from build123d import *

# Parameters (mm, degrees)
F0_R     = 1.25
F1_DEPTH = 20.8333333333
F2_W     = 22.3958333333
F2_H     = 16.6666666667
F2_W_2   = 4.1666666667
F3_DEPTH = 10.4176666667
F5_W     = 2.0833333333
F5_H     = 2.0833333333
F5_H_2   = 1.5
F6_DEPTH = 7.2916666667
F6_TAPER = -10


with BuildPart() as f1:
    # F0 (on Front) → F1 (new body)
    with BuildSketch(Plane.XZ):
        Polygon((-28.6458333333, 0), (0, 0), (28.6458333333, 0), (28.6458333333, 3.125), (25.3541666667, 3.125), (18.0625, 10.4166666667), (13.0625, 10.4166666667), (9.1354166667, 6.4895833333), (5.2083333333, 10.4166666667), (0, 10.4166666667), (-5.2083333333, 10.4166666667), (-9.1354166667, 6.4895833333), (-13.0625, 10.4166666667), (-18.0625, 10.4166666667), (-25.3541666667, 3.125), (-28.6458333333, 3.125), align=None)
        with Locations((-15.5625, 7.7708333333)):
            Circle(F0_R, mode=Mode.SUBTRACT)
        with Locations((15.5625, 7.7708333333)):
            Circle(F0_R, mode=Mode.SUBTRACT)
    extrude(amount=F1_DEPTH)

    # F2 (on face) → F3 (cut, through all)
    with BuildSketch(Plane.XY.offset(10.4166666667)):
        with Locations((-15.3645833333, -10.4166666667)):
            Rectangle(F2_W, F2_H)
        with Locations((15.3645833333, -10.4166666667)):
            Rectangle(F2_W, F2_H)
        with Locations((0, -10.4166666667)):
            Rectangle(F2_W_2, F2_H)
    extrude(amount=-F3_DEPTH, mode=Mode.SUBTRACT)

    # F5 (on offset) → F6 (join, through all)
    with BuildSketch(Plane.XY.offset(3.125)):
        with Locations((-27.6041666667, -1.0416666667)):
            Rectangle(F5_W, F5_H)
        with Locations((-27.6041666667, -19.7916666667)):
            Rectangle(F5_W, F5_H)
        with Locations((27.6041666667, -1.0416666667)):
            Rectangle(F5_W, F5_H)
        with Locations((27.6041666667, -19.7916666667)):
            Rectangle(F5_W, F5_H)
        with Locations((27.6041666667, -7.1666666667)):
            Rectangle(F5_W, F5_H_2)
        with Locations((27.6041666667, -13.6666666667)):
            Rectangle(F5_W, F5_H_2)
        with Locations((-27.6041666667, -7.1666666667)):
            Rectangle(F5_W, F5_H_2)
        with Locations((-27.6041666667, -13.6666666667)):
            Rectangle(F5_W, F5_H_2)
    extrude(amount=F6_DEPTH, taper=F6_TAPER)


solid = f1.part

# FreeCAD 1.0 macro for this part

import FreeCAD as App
import Part
import Sketcher
from FreeCAD import Vector


def add_polygon(sketch, points):
    """Adds a closed chain of lines whose ends are joined by coincident constraints."""
    first, n = sketch.GeometryCount, len(points)
    for a, b in zip(points, points[1:] + points[:1]):
        sketch.addGeometry(Part.LineSegment(App.Vector(*a, 0), App.Vector(*b, 0)), False)
    for i in range(n):
        sketch.addConstraint(Sketcher.Constraint("Coincident", first + i, 2, first + (i + 1) % n, 1))

doc = App.newDocument("Part")
params = doc.addObject("Spreadsheet::Sheet", "Params")
for row, (alias, value) in enumerate([
    ("sketch1_diameter", "2.5 mm"),
    ("sketch1_width", "5 mm"),
    ("pad1_length", "20.833333 mm"),
    ("sketch3_height", "1.5 mm"),
    ("pad2_length", "7.291667 mm"),
    ("pad2_taper", "10 deg"),
], start=1):
    params.set(f"A{row}", alias)
    params.set(f"B{row}", "=" + value)
    params.setAlias(f"B{row}", alias)

body = doc.addObject("PartDesign::Body", "Body")

sketch1 = body.newObject("Sketcher::SketchObject", "Sketch")
sketch1.AttachmentSupport = (doc.getObject("XZ_Plane"), [""])
sketch1.MapMode = "FlatFace"
add_polygon(sketch1, [(-28.6, 0), (28.6, 0), (28.6, 3.1), (25.4, 3.1), (18.1, 10.4), (13.1, 10.4), (9.1, 6.5), (5.2, 10.4), (-5.2, 10.4), (-9.1, 6.5), (-13.1, 10.4), (-18.1, 10.4), (-25.4, 3.1), (-28.6, 3.1)])
sketch1.addGeometry(Part.Circle(Vector(-15.6, 7.8, 0), Vector(0, 0, 1), 1.2), False)
sketch1.addGeometry(Part.Circle(Vector(15.6, 7.8, 0), Vector(0, 0, 1), 1.2), False)
sketch1.addConstraint(Sketcher.Constraint("Horizontal", 0))
sketch1.addConstraint(Sketcher.Constraint("Vertical", 1))
sketch1.addConstraint(Sketcher.Constraint("Horizontal", 2))
sketch1.addConstraint(Sketcher.Constraint("Horizontal", 4))
sketch1.addConstraint(Sketcher.Constraint("Horizontal", 7))
sketch1.addConstraint(Sketcher.Constraint("Horizontal", 10))
sketch1.addConstraint(Sketcher.Constraint("Horizontal", 12))
sketch1.addConstraint(Sketcher.Constraint("Vertical", 13))
sketch1.addConstraint(Sketcher.Constraint("Equal", 14, 15))
sketch1.addConstraint(Sketcher.Constraint("Symmetric", 0, 2, 13, 2, -1, 1))
sketch1.addConstraint(Sketcher.Constraint("Symmetric", 14, 3, 15, 3, -2))
sketch1.addConstraint(Sketcher.Constraint("Symmetric", 5, 2, 8, 2, -2))
sketch1.addConstraint(Sketcher.Constraint("Symmetric", 4, 2, 9, 2, -2))
sketch1.addConstraint(Sketcher.Constraint("Symmetric", 2, 2, 11, 2, -2))
sketch1.addConstraint(Sketcher.Constraint("Perpendicular", 3, 5))
sketch1.addConstraint(Sketcher.Constraint("Perpendicular", 5, 6))
sketch1.addConstraint(Sketcher.Constraint("Perpendicular", 6, 8))
sketch1.addConstraint(Sketcher.Constraint("Perpendicular", 8, 9))
sketch1.addConstraint(Sketcher.Constraint("Perpendicular", 9, 11))
sketch1.addConstraint(Sketcher.Constraint("Horizontal", 4, 2, 6, 2))
sketch1.addConstraint(Sketcher.Constraint("Diameter", 14, 2.5))
sketch1.addConstraint(Sketcher.Constraint("DistanceX", 4, 2, 4, 1, 5.0))
sketch1.addConstraint(Sketcher.Constraint("DistanceX", 15, 3, 3, 2, 2.5))
sketch1.addConstraint(Sketcher.Constraint("DistanceY", 1, 1, 1, 2, 3.125))
sketch1.addConstraint(Sketcher.Constraint("DistanceX", 14, 3, 15, 3, 31.125))
sketch1.addConstraint(Sketcher.Constraint("DistanceX", 0, 1, 0, 2, 57.291667))
sketch1.addConstraint(Sketcher.Constraint("DistanceX", 2, 2, 2, 1, 3.291667))
sketch1.addConstraint(Sketcher.Constraint("DistanceX", 7, 2, 7, 1, 10.416667))
sketch1.addConstraint(Sketcher.Constraint("DistanceY", 5, 2, 15, 3, 1.28125))
sketch1.setExpression("Constraints[34]", "Params.sketch1_diameter")
sketch1.setExpression("Constraints[35]", "Params.sketch1_width")
pad1 = body.newObject("PartDesign::Pad", "Pad")
pad1.Profile = sketch1
pad1.setExpression("Length", "Params.pad1_length")

sketch2 = body.newObject("Sketcher::SketchObject", "Sketch001")
sketch2.AttachmentSupport = (doc.getObject("XY_Plane"), [""])
sketch2.MapMode = "FlatFace"
sketch2.AttachmentOffset = App.Placement(Vector(0, 0, 10.416667), App.Rotation())
add_polygon(sketch2, [(-26.6, -2.1), (-26.6, -18.8), (-4.2, -18.8), (-4.2, -2.1)])
add_polygon(sketch2, [(4.2, -2.1), (4.2, -18.8), (26.6, -18.8), (26.6, -2.1)])
add_polygon(sketch2, [(-2.1, -2.1), (-2.1, -18.8), (2.1, -18.8), (2.1, -2.1)])
sketch2.addConstraint(Sketcher.Constraint("Vertical", 0))
sketch2.addConstraint(Sketcher.Constraint("Horizontal", 1))
sketch2.addConstraint(Sketcher.Constraint("Vertical", 2))
sketch2.addConstraint(Sketcher.Constraint("Horizontal", 3))
sketch2.addConstraint(Sketcher.Constraint("Vertical", 4))
sketch2.addConstraint(Sketcher.Constraint("Horizontal", 5))
sketch2.addConstraint(Sketcher.Constraint("Vertical", 6))
sketch2.addConstraint(Sketcher.Constraint("Horizontal", 7))
sketch2.addConstraint(Sketcher.Constraint("Vertical", 8))
sketch2.addConstraint(Sketcher.Constraint("Horizontal", 9))
sketch2.addConstraint(Sketcher.Constraint("Vertical", 10))
sketch2.addConstraint(Sketcher.Constraint("Horizontal", 11))
sketch2.addConstraint(Sketcher.Constraint("Symmetric", 1, 2, 4, 2, -2))
sketch2.addConstraint(Sketcher.Constraint("Symmetric", 3, 2, 6, 2, -2))
sketch2.addConstraint(Sketcher.Constraint("Horizontal", 5, 2, 8, 2))
sketch2.addConstraint(Sketcher.Constraint("Horizontal", 7, 2, 10, 2))
sketch2.addConstraint(Sketcher.Constraint("DistanceY", 0, 2, -1, 1, 18.75))
sketch2.addConstraint(Sketcher.Constraint("DistanceX", 8, 2, 4, 2, 6.25))
sketch2.addConstraint(Sketcher.Constraint("DistanceX", 1, 2, 9, 2, 6.25))
sketch2.addConstraint(Sketcher.Constraint("DistanceX", 0, 2, 5, 2, 53.125))
sketch2.addConstraint(Sketcher.Constraint("DistanceX", 1, 1, 1, 2, 22.395833))
sketch2.addConstraint(Sketcher.Constraint("DistanceY", 0, 2, 0, 1, 16.666667))
pocket1 = body.newObject("PartDesign::Pocket", "Pocket")
pocket1.Profile = sketch2
pocket1.Type = "ThroughAll"

sketch3 = body.newObject("Sketcher::SketchObject", "Sketch002")
sketch3.AttachmentSupport = (doc.getObject("XY_Plane"), [""])
sketch3.MapMode = "FlatFace"
sketch3.AttachmentOffset = App.Placement(Vector(0, 0, 3.125), App.Rotation())
add_polygon(sketch3, [(-28.6, 0), (-28.6, -2.1), (-26.6, -2.1), (-26.6, 0)])
add_polygon(sketch3, [(-28.6, -18.8), (-28.6, -20.8), (-26.6, -20.8), (-26.6, -18.8)])
add_polygon(sketch3, [(26.6, 0), (26.6, -2.1), (28.6, -2.1), (28.6, 0)])
add_polygon(sketch3, [(26.6, -18.8), (26.6, -20.8), (28.6, -20.8), (28.6, -18.8)])
add_polygon(sketch3, [(26.6, -6.4), (26.6, -7.9), (28.6, -7.9), (28.6, -6.4)])
add_polygon(sketch3, [(26.6, -12.9), (26.6, -14.4), (28.6, -14.4), (28.6, -12.9)])
add_polygon(sketch3, [(-28.6, -6.4), (-28.6, -7.9), (-26.6, -7.9), (-26.6, -6.4)])
add_polygon(sketch3, [(-28.6, -12.9), (-28.6, -14.4), (-26.6, -14.4), (-26.6, -12.9)])
sketch3.addConstraint(Sketcher.Constraint("Vertical", 0))
sketch3.addConstraint(Sketcher.Constraint("Horizontal", 1))
sketch3.addConstraint(Sketcher.Constraint("Vertical", 2))
sketch3.addConstraint(Sketcher.Constraint("Horizontal", 3))
sketch3.addConstraint(Sketcher.Constraint("Vertical", 4))
sketch3.addConstraint(Sketcher.Constraint("Horizontal", 5))
sketch3.addConstraint(Sketcher.Constraint("Vertical", 6))
sketch3.addConstraint(Sketcher.Constraint("Horizontal", 7))
sketch3.addConstraint(Sketcher.Constraint("Vertical", 8))
sketch3.addConstraint(Sketcher.Constraint("Horizontal", 9))
sketch3.addConstraint(Sketcher.Constraint("Vertical", 10))
sketch3.addConstraint(Sketcher.Constraint("Horizontal", 11))
sketch3.addConstraint(Sketcher.Constraint("Vertical", 12))
sketch3.addConstraint(Sketcher.Constraint("Horizontal", 13))
sketch3.addConstraint(Sketcher.Constraint("Vertical", 14))
sketch3.addConstraint(Sketcher.Constraint("Horizontal", 15))
sketch3.addConstraint(Sketcher.Constraint("Vertical", 16))
sketch3.addConstraint(Sketcher.Constraint("Horizontal", 17))
sketch3.addConstraint(Sketcher.Constraint("Vertical", 18))
sketch3.addConstraint(Sketcher.Constraint("Horizontal", 19))
sketch3.addConstraint(Sketcher.Constraint("Vertical", 20))
sketch3.addConstraint(Sketcher.Constraint("Horizontal", 21))
sketch3.addConstraint(Sketcher.Constraint("Vertical", 22))
sketch3.addConstraint(Sketcher.Constraint("Horizontal", 23))
sketch3.addConstraint(Sketcher.Constraint("Vertical", 24))
sketch3.addConstraint(Sketcher.Constraint("Horizontal", 25))
sketch3.addConstraint(Sketcher.Constraint("Vertical", 26))
sketch3.addConstraint(Sketcher.Constraint("Horizontal", 27))
sketch3.addConstraint(Sketcher.Constraint("Vertical", 28))
sketch3.addConstraint(Sketcher.Constraint("Horizontal", 29))
sketch3.addConstraint(Sketcher.Constraint("Vertical", 30))
sketch3.addConstraint(Sketcher.Constraint("Horizontal", 31))
sketch3.addConstraint(Sketcher.Constraint("Symmetric", 3, 2, 10, 2, -1, 1))
sketch3.addConstraint(Sketcher.Constraint("Symmetric", 1, 2, 8, 2, -2))
sketch3.addConstraint(Sketcher.Constraint("Symmetric", 5, 2, 12, 2, -2))
sketch3.addConstraint(Sketcher.Constraint("Symmetric", 7, 2, 14, 2, -2))
sketch3.addConstraint(Sketcher.Constraint("Symmetric", 17, 2, 24, 2, -2))
sketch3.addConstraint(Sketcher.Constraint("Symmetric", 19, 2, 26, 2, -2))
sketch3.addConstraint(Sketcher.Constraint("Symmetric", 21, 2, 28, 2, -2))
sketch3.addConstraint(Sketcher.Constraint("Symmetric", 23, 2, 30, 2, -2))
sketch3.addConstraint(Sketcher.Constraint("PointOnObject", 2, 2, -1))
sketch3.addConstraint(Sketcher.Constraint("Vertical", 3, 2, 4, 2))
sketch3.addConstraint(Sketcher.Constraint("Vertical", 2, 2, 5, 2))
sketch3.addConstraint(Sketcher.Constraint("Vertical", 15, 2, 16, 2))
sketch3.addConstraint(Sketcher.Constraint("Vertical", 14, 2, 17, 2))
sketch3.addConstraint(Sketcher.Constraint("Vertical", 19, 2, 20, 2))
sketch3.addConstraint(Sketcher.Constraint("Vertical", 18, 2, 21, 2))
sketch3.addConstraint(Sketcher.Constraint("Equal", 31, 0))
sketch3.addConstraint(Sketcher.Constraint("Equal", 2, 4))
sketch3.addConstraint(Sketcher.Constraint("Equal", 18, 20))
sketch3.addConstraint(Sketcher.Constraint("DistanceY", 16, 2, 16, 1, 1.5))
sketch3.addConstraint(Sketcher.Constraint("DistanceY", 22, 2, 17, 2, 5.0))
sketch3.addConstraint(Sketcher.Constraint("DistanceY", 6, 2, -1, 1, 18.75))
sketch3.addConstraint(Sketcher.Constraint("DistanceX", 1, 2, 8, 2, 53.125))
sketch3.addConstraint(Sketcher.Constraint("DistanceX", 1, 1, 1, 2, 2.083333))
sketch3.addConstraint(Sketcher.Constraint("DistanceY", 16, 2, -1, 1, 7.916667))
sketch3.setExpression("Constraints[82]", "Params.sketch3_height")
pad2 = body.newObject("PartDesign::Pad", "Pad001")
pad2.Profile = sketch3
pad2.setExpression("Length", "Params.pad2_length")
pad2.setExpression("TaperAngle", "Params.pad2_taper")

doc.recompute()
